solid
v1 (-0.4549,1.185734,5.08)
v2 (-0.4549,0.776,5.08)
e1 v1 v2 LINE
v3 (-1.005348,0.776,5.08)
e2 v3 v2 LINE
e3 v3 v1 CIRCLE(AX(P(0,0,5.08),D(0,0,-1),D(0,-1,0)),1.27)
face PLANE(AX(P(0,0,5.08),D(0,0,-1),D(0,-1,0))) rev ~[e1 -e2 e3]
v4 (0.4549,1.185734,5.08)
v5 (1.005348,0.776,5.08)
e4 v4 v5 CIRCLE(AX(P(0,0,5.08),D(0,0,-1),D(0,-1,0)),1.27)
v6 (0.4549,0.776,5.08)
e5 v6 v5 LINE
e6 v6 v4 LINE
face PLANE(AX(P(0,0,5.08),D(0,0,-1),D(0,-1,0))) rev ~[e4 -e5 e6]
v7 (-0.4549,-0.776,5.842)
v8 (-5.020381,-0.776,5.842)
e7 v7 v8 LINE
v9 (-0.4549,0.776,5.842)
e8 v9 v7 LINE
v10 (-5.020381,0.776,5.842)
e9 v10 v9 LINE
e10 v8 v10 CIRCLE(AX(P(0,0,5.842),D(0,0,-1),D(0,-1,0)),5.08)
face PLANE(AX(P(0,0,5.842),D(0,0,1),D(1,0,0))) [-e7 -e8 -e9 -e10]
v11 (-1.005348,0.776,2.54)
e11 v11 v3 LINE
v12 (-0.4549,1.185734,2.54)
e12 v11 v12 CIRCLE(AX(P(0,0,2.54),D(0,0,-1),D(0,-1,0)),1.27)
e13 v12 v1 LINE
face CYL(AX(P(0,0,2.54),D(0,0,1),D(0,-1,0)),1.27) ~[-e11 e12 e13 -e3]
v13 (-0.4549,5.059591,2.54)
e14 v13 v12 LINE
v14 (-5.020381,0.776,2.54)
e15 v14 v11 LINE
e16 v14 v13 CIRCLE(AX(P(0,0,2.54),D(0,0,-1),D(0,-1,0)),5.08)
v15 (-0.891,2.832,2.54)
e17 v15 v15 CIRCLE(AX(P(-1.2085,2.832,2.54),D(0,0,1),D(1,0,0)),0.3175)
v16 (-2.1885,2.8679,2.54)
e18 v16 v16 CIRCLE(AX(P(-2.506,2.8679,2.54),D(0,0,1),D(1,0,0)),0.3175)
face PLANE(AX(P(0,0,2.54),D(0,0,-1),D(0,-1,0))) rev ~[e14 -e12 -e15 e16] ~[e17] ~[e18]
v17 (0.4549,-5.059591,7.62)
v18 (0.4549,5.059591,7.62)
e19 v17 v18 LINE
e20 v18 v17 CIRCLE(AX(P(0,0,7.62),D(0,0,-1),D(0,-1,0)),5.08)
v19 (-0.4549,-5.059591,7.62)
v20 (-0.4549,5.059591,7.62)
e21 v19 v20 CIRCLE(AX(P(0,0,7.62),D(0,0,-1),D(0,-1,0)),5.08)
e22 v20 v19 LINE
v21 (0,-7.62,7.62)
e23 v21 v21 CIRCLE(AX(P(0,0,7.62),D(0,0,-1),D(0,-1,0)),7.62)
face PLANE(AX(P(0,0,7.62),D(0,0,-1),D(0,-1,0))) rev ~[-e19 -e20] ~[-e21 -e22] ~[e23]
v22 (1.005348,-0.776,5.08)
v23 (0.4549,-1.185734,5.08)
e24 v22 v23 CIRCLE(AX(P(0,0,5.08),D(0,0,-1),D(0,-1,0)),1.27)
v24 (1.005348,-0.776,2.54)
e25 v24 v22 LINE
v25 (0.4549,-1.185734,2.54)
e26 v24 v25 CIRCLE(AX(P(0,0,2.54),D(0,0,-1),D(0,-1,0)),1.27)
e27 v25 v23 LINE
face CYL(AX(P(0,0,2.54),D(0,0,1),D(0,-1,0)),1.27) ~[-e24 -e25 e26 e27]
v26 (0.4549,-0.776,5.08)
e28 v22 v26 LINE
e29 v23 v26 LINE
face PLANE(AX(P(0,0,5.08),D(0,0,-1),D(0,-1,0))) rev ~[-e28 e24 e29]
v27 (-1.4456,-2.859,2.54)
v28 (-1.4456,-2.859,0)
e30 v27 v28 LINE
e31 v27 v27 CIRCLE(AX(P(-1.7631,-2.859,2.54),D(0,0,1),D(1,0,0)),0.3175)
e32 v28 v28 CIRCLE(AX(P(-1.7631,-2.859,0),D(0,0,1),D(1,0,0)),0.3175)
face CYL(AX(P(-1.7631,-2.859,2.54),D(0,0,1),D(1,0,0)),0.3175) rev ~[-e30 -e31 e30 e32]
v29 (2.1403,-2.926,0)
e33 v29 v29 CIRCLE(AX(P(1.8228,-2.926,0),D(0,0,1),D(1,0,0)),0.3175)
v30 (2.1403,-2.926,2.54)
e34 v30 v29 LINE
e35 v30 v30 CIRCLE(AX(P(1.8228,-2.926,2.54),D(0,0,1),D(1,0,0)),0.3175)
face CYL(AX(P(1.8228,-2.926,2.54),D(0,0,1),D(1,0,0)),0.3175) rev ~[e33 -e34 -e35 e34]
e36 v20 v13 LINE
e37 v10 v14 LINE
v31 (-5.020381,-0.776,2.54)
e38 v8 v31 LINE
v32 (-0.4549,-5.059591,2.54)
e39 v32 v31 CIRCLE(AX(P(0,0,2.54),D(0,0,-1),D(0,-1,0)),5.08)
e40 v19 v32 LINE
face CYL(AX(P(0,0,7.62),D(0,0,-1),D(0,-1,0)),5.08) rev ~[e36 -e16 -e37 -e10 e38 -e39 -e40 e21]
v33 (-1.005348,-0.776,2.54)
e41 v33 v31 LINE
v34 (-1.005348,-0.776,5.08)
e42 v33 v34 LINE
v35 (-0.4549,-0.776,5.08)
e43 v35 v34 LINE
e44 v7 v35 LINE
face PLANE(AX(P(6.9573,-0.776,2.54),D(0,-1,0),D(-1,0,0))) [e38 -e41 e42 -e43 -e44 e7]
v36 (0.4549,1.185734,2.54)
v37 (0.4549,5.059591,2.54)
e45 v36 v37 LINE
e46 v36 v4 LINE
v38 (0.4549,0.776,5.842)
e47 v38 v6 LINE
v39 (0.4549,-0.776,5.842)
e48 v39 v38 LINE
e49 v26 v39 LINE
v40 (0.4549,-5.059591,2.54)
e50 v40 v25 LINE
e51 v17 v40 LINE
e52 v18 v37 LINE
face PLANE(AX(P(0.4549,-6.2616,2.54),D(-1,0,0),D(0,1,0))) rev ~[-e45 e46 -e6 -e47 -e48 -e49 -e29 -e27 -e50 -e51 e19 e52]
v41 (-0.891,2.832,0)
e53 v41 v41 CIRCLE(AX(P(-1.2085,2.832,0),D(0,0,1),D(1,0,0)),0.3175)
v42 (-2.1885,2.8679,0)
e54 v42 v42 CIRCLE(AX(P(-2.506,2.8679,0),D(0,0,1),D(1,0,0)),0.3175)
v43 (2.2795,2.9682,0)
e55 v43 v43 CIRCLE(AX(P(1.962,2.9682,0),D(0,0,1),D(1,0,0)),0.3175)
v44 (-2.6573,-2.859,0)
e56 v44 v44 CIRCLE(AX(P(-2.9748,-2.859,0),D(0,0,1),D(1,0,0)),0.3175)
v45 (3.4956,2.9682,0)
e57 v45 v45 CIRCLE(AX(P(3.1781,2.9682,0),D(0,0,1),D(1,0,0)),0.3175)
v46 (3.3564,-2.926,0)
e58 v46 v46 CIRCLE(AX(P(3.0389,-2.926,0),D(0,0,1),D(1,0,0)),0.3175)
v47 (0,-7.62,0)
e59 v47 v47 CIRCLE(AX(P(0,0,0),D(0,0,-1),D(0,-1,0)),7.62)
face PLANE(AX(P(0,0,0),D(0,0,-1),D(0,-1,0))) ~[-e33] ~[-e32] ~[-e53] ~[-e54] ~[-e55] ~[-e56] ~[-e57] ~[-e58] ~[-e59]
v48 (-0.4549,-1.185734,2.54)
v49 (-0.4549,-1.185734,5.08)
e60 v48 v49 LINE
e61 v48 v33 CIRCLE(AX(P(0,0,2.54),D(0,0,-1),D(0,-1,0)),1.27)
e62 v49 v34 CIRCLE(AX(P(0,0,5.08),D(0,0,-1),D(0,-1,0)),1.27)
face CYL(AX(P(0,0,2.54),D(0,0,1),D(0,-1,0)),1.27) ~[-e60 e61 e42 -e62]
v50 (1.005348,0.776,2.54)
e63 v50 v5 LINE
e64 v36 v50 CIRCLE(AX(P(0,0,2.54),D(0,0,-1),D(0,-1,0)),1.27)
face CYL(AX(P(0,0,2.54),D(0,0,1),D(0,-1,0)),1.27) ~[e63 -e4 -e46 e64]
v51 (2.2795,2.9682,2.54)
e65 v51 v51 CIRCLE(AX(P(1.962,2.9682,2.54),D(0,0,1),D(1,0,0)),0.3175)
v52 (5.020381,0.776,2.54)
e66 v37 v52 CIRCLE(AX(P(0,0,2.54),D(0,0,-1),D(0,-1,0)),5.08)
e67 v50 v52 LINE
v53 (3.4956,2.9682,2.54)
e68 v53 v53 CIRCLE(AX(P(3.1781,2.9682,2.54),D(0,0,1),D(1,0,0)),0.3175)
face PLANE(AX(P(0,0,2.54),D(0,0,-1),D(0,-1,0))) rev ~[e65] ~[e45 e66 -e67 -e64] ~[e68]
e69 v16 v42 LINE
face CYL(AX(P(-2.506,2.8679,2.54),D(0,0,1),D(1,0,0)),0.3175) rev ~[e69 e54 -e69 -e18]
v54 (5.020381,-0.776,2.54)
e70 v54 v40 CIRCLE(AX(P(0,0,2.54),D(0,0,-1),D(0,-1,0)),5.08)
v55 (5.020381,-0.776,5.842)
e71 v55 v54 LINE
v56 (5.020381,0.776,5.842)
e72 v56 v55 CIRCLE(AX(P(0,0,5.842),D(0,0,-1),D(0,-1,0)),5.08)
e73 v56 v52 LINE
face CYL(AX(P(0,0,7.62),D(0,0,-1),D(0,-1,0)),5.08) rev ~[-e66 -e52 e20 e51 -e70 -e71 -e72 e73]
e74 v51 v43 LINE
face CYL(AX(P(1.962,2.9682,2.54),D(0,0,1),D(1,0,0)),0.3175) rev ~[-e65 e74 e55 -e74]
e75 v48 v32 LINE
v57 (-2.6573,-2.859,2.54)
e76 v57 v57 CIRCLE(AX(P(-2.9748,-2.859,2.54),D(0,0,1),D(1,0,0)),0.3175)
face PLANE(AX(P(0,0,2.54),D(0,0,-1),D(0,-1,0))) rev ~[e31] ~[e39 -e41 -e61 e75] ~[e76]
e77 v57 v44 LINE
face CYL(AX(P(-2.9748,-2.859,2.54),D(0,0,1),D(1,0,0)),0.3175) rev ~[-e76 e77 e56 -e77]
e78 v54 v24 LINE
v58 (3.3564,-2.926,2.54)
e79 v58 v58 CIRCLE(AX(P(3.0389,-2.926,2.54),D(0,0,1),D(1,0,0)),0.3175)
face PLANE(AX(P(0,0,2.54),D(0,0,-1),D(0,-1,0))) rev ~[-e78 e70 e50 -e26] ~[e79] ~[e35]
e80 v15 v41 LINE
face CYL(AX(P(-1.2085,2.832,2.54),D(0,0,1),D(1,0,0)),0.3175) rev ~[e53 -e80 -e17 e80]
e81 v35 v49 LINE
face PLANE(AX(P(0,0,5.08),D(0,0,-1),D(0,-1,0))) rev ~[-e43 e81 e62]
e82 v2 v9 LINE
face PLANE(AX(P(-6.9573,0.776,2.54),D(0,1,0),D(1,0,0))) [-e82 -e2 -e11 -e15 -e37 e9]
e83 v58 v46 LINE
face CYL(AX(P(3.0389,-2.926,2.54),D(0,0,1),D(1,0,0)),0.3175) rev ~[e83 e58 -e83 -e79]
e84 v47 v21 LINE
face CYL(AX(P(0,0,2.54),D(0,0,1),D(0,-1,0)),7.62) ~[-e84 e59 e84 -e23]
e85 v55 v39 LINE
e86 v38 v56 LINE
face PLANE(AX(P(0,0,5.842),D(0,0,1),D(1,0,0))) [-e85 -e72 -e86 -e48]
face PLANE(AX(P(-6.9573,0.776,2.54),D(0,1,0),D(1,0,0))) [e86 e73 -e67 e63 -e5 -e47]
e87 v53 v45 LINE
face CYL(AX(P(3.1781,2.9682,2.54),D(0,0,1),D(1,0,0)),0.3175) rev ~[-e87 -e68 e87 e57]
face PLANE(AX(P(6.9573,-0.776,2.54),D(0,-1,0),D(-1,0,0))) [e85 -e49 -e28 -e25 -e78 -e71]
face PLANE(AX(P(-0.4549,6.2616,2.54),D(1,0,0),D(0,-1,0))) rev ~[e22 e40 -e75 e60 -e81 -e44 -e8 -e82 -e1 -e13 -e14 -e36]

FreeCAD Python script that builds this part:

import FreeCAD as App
import Part
import Sketcher
from FreeCAD import Vector
Q = App.Units.Quantity

doc = App.newDocument("Part")
body = doc.addObject("PartDesign::Body", "Body")

# Sketch on YZ plane
sketch1 = body.newObject("Sketcher::SketchObject", "Sketch")
sketch1.AttachmentSupport = (doc.getObject("YZ_Plane"), [""])
sketch1.MapMode = "FlatFace"
sketch1.addGeometry(Part.LineSegment(Vector(-7.6, 7.6, 0), Vector(-7.6, 0, 0)), False)
sketch1.addGeometry(Part.LineSegment(Vector(-7.6, 0, 0), Vector(0, 0, 0)), False)
sketch1.addGeometry(Part.LineSegment(Vector(0, 0, 0), Vector(0, 5.1, 0)), False)
sketch1.addGeometry(Part.LineSegment(Vector(0, 5.1, 0), Vector(-1.3, 5.1, 0)), False)
sketch1.addGeometry(Part.LineSegment(Vector(-1.3, 5.1, 0), Vector(-1.3, 2.5, 0)), False)
sketch1.addGeometry(Part.LineSegment(Vector(-1.3, 2.5, 0), Vector(-5.1, 2.5, 0)), False)
sketch1.addGeometry(Part.LineSegment(Vector(-5.1, 2.5, 0), Vector(-5.1, 7.6, 0)), False)
sketch1.addGeometry(Part.LineSegment(Vector(-5.1, 7.6, 0), Vector(-7.6, 7.6, 0)), False)
sketch1.addConstraint(Sketcher.Constraint("Coincident", 0, 2, 1, 1))
sketch1.addConstraint(Sketcher.Constraint("Coincident", 1, 2, 2, 1))
sketch1.addConstraint(Sketcher.Constraint("Coincident", 2, 2, 3, 1))
sketch1.addConstraint(Sketcher.Constraint("Coincident", 3, 2, 4, 1))
sketch1.addConstraint(Sketcher.Constraint("Coincident", 4, 2, 5, 1))
sketch1.addConstraint(Sketcher.Constraint("Coincident", 5, 2, 6, 1))
sketch1.addConstraint(Sketcher.Constraint("Coincident", 6, 2, 7, 1))
sketch1.addConstraint(Sketcher.Constraint("Coincident", 7, 2, 0, 1))
sketch1.addConstraint(Sketcher.Constraint("Vertical", 0))
sketch1.addConstraint(Sketcher.Constraint("Horizontal", 1))
sketch1.addConstraint(Sketcher.Constraint("Vertical", 2))
sketch1.addConstraint(Sketcher.Constraint("Horizontal", 3))
sketch1.addConstraint(Sketcher.Constraint("Vertical", 4))
sketch1.addConstraint(Sketcher.Constraint("Horizontal", 5))
sketch1.addConstraint(Sketcher.Constraint("Vertical", 6))
sketch1.addConstraint(Sketcher.Constraint("Horizontal", 7))
sketch1.addConstraint(Sketcher.Constraint("Coincident", 1, 2, -1, 1))
sketch1.addConstraint(Sketcher.Constraint("Equal", 1, 0))
sketch1.addConstraint(Sketcher.Constraint("Equal", 7, 4))
sketch1.addConstraint(Sketcher.Constraint("Equal", 2, 6))
sketch1.addConstraint(Sketcher.Constraint("DistanceX", 1, 1, 1, 2, Q("0.3 in")))
sketch1.addConstraint(Sketcher.Constraint("DistanceX", 7, 2, 7, 1, Q("0.1 in")))
sketch1.addConstraint(Sketcher.Constraint("DistanceX", 3, 2, 3, 1, Q("0.05 in")))
revolution = body.newObject("PartDesign::Revolution", "Revolution")
revolution.Profile = sketch1
revolution.ReferenceAxis = (sketch1, ["V_Axis"])
revolution.Angle = 360

# Sketch on XY plane
sketch2 = body.newObject("Sketcher::SketchObject", "Sketch001")
sketch2.AttachmentSupport = (doc.getObject("XY_Plane"), [""])
sketch2.MapMode = "FlatFace"
sketch2.AttachmentOffset = App.Placement(Vector(0, 0, 0.1 * 25.4), App.Rotation())
sketch2.addGeometry(Part.Circle(Vector(-2.97, -2.86, 0), Vector(0, 0, 1), 0.32), False)
sketch2.addGeometry(Part.Circle(Vector(-1.76, -2.86, 0), Vector(0, 0, 1), 0.32), False)
sketch2.addConstraint(Sketcher.Constraint("Equal", 0, 1))
sketch2.addConstraint(Sketcher.Constraint("Horizontal", 0, 3, 1, 3))
sketch2.addConstraint(Sketcher.Constraint("Diameter", 0, Q("0.025 in")))
sketch2.addConstraint(Sketcher.Constraint("DistanceX", 0, 3, 1, 3, Q("0.0477 in")))
sketch2.addConstraint(Sketcher.Constraint("DistanceX", 0, 3, -1, 1, 2.9748))
sketch2.addConstraint(Sketcher.Constraint("DistanceY", 0, 3, -1, 1, 2.859))
pocket1 = body.newObject("PartDesign::Pocket", "Pocket")
pocket1.Profile = sketch2
pocket1.Length = Q("1 in")
pocket1.Midplane = True

# Sketch on XY plane
sketch3 = body.newObject("Sketcher::SketchObject", "Sketch002")
sketch3.AttachmentSupport = (doc.getObject("XY_Plane"), [""])
sketch3.MapMode = "FlatFace"
sketch3.AttachmentOffset = App.Placement(Vector(0, 0, 0.1 * 25.4), App.Rotation())
sketch3.addGeometry(Part.Circle(Vector(1.82, -2.93, 0), Vector(0, 0, 1), 0.32), False)
sketch3.addGeometry(Part.Circle(Vector(3.04, -2.93, 0), Vector(0, 0, 1), 0.32), False)
sketch3.addGeometry(Part.Circle(Vector(1.96, 2.97, 0), Vector(0, 0, 1), 0.32), False)
sketch3.addGeometry(Part.Circle(Vector(3.18, 2.97, 0), Vector(0, 0, 1), 0.32), False)
sketch3.addGeometry(Part.Circle(Vector(-1.21, 2.83, 0), Vector(0, 0, 1), 0.32), False)
sketch3.addGeometry(Part.Circle(Vector(-2.51, 2.87, 0), Vector(0, 0, 1), 0.32), False)
sketch3.addConstraint(Sketcher.Constraint("Equal", 0, 1))
sketch3.addConstraint(Sketcher.Constraint("Equal", 1, 2))
sketch3.addConstraint(Sketcher.Constraint("Equal", 2, 3))
sketch3.addConstraint(Sketcher.Constraint("Equal", 3, 4))
sketch3.addConstraint(Sketcher.Constraint("Equal", 4, 5))
sketch3.addConstraint(Sketcher.Constraint("Horizontal", 0, 3, 1, 3))
sketch3.addConstraint(Sketcher.Constraint("Horizontal", 2, 3, 3, 3))
sketch3.addConstraint(Sketcher.Constraint("Diameter", 0, Q("0.025 in")))
sketch3.addConstraint(Sketcher.Constraint("DistanceY", 0, 3, -1, 1, Q("0.1152 in")))
sketch3.addConstraint(Sketcher.Constraint("DistanceY", -1, 1, 4, 3, Q("0.1115 in")))
sketch3.addConstraint(Sketcher.Constraint("DistanceY", -1, 1, 5, 3, Q("0.1129 in")))
sketch3.addConstraint(Sketcher.Constraint("DistanceX", 2, 3, 1, 3, Q("0.0424 in")))
sketch3.addConstraint(Sketcher.Constraint("DistanceX", 4, 3, 3, 3, Q("0.1727 in")))
sketch3.addConstraint(Sketcher.Constraint("DistanceX", 5, 3, 2, 3, Q("0.1759 in")))
sketch3.addConstraint(Sketcher.Constraint("DistanceX", -1, 1, 0, 3, 1.8228))
sketch3.addConstraint(Sketcher.Constraint("DistanceX", -1, 1, 1, 3, 3.039))
sketch3.addConstraint(Sketcher.Constraint("DistanceY", -1, 1, 2, 3, 2.9682))
sketch3.addConstraint(Sketcher.Constraint("DistanceX", -1, 1, 3, 3, 3.178))
pocket2 = body.newObject("PartDesign::Pocket", "Pocket001")
pocket2.Profile = sketch3
pocket2.Length = Q("1 in")
pocket2.Midplane = True

# Sketch on XY plane
sketch4 = body.newObject("Sketcher::SketchObject", "Sketch003")
sketch4.AttachmentSupport = (doc.getObject("XY_Plane"), [""])
sketch4.MapMode = "FlatFace"
sketch4.AttachmentOffset = App.Placement(Vector(0, 0, 0.1 * 25.4), App.Rotation())
sketch4.addGeometry(Part.LineSegment(Vector(-0.5, 6.3, 0), Vector(-0.5, -6.3, 0)), False)
sketch4.addGeometry(Part.LineSegment(Vector(-0.5, -6.3, 0), Vector(0.5, -6.3, 0)), False)
sketch4.addGeometry(Part.LineSegment(Vector(0.5, -6.3, 0), Vector(0.5, 6.3, 0)), False)
sketch4.addGeometry(Part.LineSegment(Vector(0.5, 6.3, 0), Vector(-0.5, 6.3, 0)), False)
sketch4.addConstraint(Sketcher.Constraint("Coincident", 0, 2, 1, 1))
sketch4.addConstraint(Sketcher.Constraint("Coincident", 1, 2, 2, 1))
sketch4.addConstraint(Sketcher.Constraint("Coincident", 2, 2, 3, 1))
sketch4.addConstraint(Sketcher.Constraint("Coincident", 3, 2, 0, 1))
sketch4.addConstraint(Sketcher.Constraint("Vertical", 0))
sketch4.addConstraint(Sketcher.Constraint("Horizontal", 1))
sketch4.addConstraint(Sketcher.Constraint("Vertical", 2))
sketch4.addConstraint(Sketcher.Constraint("Horizontal", 3))
sketch4.addConstraint(Sketcher.Constraint("Symmetric", 0, 2, 2, 2, -1, 1))
sketch4.addConstraint(Sketcher.Constraint("DistanceX", 1, 1, 1, 2, 0.9098))
sketch4.addConstraint(Sketcher.Constraint("DistanceY", 0, 2, 0, 1, 12.5232))
pad1 = body.newObject("PartDesign::Pad", "Pad")
pad1.Profile = sketch4
pad1.Length = Q("0.2 in")

# Sketch on XY plane
sketch5 = body.newObject("Sketcher::SketchObject", "Sketch004")
sketch5.AttachmentSupport = (doc.getObject("XY_Plane"), [""])
sketch5.MapMode = "FlatFace"
sketch5.AttachmentOffset = App.Placement(Vector(0, 0, 0.1 * 25.4), App.Rotation())
sketch5.addGeometry(Part.LineSegment(Vector(7, 0.8, 0), Vector(-7, 0.8, 0)), False)
sketch5.addGeometry(Part.LineSegment(Vector(-7, 0.8, 0), Vector(-7, -0.8, 0)), False)
sketch5.addGeometry(Part.LineSegment(Vector(-7, -0.8, 0), Vector(7, -0.8, 0)), False)
sketch5.addGeometry(Part.LineSegment(Vector(7, -0.8, 0), Vector(7, 0.8, 0)), False)
sketch5.addConstraint(Sketcher.Constraint("Coincident", 0, 2, 1, 1))
sketch5.addConstraint(Sketcher.Constraint("Coincident", 1, 2, 2, 1))
sketch5.addConstraint(Sketcher.Constraint("Coincident", 2, 2, 3, 1))
sketch5.addConstraint(Sketcher.Constraint("Coincident", 3, 2, 0, 1))
sketch5.addConstraint(Sketcher.Constraint("Horizontal", 0))
sketch5.addConstraint(Sketcher.Constraint("Vertical", 1))
sketch5.addConstraint(Sketcher.Constraint("Horizontal", 2))
sketch5.addConstraint(Sketcher.Constraint("Vertical", 3))
sketch5.addConstraint(Sketcher.Constraint("Symmetric", 0, 2, 2, 2, -1, 1))
sketch5.addConstraint(Sketcher.Constraint("DistanceY", 1, 2, 1, 1, Q("0.0611 in")))
sketch5.addConstraint(Sketcher.Constraint("DistanceX", 0, 2, 0, 1, 13.9146))
pad2 = body.newObject("PartDesign::Pad", "Pad001")
pad2.Profile = sketch5
pad2.Length = Q("0.13 in")

doc.recompute()
